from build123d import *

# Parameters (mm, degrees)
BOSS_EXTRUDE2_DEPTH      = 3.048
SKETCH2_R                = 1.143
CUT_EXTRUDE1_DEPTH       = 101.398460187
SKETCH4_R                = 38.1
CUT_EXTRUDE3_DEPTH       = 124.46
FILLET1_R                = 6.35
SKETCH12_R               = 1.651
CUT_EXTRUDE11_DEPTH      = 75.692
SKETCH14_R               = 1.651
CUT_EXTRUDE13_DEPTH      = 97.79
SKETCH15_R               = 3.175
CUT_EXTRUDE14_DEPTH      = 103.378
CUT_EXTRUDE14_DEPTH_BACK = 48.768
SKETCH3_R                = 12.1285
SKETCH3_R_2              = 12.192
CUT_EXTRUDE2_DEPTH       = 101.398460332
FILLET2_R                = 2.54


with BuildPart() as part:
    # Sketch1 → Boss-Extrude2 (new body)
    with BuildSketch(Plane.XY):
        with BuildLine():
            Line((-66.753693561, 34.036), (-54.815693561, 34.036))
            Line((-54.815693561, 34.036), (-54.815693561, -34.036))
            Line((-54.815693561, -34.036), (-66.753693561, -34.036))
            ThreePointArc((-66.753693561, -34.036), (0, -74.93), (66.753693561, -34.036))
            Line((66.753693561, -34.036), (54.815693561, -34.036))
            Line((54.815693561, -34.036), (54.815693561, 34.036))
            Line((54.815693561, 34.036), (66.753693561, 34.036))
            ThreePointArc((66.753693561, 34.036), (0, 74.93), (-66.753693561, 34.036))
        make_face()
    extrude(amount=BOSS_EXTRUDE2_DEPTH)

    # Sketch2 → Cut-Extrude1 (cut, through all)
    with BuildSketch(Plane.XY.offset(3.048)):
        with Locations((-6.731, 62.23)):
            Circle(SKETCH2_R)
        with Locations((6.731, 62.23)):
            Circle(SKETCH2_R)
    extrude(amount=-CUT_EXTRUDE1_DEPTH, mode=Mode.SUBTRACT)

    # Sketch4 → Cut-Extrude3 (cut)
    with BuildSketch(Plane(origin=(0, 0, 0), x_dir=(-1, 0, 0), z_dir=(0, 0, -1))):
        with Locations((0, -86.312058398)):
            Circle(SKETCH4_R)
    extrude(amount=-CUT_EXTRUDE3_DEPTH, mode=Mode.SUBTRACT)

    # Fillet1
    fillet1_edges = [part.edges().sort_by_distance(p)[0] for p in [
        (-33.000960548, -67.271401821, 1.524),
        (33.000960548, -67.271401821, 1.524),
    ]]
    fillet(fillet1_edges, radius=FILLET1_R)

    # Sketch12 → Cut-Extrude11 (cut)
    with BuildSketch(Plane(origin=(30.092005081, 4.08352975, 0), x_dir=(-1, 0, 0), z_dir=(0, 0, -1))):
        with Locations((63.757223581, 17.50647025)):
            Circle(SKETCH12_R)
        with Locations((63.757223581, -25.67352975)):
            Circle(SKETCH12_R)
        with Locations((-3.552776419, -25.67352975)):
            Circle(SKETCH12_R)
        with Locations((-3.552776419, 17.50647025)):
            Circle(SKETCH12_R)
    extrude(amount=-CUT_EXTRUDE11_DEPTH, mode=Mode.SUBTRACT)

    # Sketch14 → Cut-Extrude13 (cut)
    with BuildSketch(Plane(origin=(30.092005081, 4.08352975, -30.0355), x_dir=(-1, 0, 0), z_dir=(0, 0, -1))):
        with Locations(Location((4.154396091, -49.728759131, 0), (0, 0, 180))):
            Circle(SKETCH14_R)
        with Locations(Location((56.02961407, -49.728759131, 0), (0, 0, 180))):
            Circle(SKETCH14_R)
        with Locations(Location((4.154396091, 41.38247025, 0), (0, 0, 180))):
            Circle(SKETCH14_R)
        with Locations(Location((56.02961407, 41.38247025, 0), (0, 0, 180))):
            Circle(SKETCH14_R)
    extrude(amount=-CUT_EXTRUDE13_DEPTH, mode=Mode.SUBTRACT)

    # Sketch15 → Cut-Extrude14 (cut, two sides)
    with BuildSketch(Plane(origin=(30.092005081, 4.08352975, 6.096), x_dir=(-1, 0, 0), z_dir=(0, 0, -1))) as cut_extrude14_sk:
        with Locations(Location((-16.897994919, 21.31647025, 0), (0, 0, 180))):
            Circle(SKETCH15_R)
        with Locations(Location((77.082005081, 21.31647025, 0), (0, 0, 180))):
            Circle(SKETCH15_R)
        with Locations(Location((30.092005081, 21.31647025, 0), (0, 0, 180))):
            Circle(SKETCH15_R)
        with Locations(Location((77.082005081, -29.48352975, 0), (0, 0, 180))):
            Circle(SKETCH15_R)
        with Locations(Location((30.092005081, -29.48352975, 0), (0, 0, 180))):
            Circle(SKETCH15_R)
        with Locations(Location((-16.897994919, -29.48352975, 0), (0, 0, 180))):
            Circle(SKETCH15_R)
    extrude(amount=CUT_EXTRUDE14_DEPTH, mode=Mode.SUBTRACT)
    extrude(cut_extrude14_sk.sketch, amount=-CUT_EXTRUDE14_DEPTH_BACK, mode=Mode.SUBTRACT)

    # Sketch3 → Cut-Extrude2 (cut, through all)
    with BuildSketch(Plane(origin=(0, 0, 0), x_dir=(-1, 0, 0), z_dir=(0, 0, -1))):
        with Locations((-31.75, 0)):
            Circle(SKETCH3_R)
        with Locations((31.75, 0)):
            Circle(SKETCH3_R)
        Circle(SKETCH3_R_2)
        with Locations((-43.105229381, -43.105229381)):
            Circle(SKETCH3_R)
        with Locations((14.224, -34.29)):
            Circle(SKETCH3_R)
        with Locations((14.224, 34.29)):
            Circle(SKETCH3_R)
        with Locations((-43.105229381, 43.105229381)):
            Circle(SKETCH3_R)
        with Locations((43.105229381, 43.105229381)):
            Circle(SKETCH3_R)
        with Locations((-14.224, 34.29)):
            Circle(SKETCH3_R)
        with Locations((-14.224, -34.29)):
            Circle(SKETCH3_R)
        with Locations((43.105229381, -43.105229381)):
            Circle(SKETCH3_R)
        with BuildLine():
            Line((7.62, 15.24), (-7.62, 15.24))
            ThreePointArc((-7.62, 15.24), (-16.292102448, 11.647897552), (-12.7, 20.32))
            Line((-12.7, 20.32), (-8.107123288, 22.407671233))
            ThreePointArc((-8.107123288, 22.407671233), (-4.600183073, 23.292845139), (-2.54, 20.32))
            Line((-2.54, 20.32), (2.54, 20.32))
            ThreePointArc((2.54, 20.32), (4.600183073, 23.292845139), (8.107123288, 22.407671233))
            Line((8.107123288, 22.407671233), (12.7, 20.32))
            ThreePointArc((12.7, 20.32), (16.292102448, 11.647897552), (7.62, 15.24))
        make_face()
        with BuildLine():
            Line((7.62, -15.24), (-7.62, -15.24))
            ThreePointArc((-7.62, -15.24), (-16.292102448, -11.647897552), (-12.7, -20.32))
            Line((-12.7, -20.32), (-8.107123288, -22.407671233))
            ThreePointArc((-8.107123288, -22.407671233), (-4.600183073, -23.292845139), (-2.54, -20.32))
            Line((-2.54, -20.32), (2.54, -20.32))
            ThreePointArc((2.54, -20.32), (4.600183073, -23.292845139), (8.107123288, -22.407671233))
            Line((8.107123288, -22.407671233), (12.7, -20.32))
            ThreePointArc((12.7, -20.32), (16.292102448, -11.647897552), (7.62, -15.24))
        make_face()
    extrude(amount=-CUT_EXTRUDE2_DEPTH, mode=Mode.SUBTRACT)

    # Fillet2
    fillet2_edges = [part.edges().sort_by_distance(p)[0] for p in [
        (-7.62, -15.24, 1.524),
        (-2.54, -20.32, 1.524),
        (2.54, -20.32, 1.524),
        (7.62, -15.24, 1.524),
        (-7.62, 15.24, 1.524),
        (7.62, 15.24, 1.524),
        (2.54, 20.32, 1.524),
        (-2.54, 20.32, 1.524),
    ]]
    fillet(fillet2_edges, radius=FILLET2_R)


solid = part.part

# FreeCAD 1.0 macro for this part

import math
import FreeCAD as App
import Part
import Sketcher
Q = App.Units.Quantity


def edges_at(feature, points):
    """Names of the edges that pass closest to the given points."""
    edges = feature.Shape.Edges
    near = lambda p: min(range(len(edges)), key=lambda i: edges[i].distToShape(Part.Vertex(*p))[0])
    return sorted({f"Edge{near(p) + 1}" for p in points})

doc = App.newDocument("Part")
body = doc.addObject("PartDesign::Body", "Body")

sketch1 = body.newObject("Sketcher::SketchObject", "Sketch")
sketch1.AttachmentSupport = (doc.getObject("XY_Plane"), [""])
sketch1.MapMode = "FlatFace"
sketch1.addGeometry([
    Part.LineSegment(App.Vector(-67, 34, 0), App.Vector(-55, 34, 0)),
    Part.LineSegment(App.Vector(-55, 34, 0), App.Vector(-55, -34, 0)),
    Part.LineSegment(App.Vector(-55, -34, 0), App.Vector(-67, -34, 0)),
    Part.ArcOfCircle(Part.Circle(App.Vector(0, 0, 0), App.Vector(0, 0, 1), 75), math.radians(-153), math.radians(-27)),
    Part.LineSegment(App.Vector(67, -34, 0), App.Vector(55, -34, 0)),
    Part.LineSegment(App.Vector(55, -34, 0), App.Vector(55, 34, 0)),
    Part.LineSegment(App.Vector(55, 34, 0), App.Vector(67, 34, 0)),
    Part.ArcOfCircle(Part.Circle(App.Vector(0, 0, 0), App.Vector(0, 0, 1), 75), math.radians(27), math.radians(153)),
], False)
sketch1.addConstraint([
    Sketcher.Constraint("Coincident", 0, 2, 1, 1),
    Sketcher.Constraint("Coincident", 1, 2, 2, 1),
    Sketcher.Constraint("Coincident", 2, 2, 3, 1),
    Sketcher.Constraint("Coincident", 3, 2, 4, 1),
    Sketcher.Constraint("Coincident", 4, 2, 5, 1),
    Sketcher.Constraint("Coincident", 5, 2, 6, 1),
    Sketcher.Constraint("Coincident", 6, 2, 7, 1),
    Sketcher.Constraint("Coincident", 7, 2, 0, 1),
    Sketcher.Constraint("Horizontal", 0),
    Sketcher.Constraint("Vertical", 1),
    Sketcher.Constraint("Horizontal", 2),
    Sketcher.Constraint("Horizontal", 4),
    Sketcher.Constraint("Vertical", 5),
    Sketcher.Constraint("Horizontal", 6),
    Sketcher.Constraint("Coincident", 3, 3, -1, 1),
    Sketcher.Constraint("Coincident", 7, 3, -1, 1),
    Sketcher.Constraint("Equal", 3, 7),
    Sketcher.Constraint("Symmetric", 0, 2, 4, 2, -1, 1),
    Sketcher.Constraint("Horizontal", 2, 2, 3, 2),
    Sketcher.Constraint("Horizontal", 0, 2, 5, 2),
    Sketcher.Constraint("Radius", 3, Q("2.95 in")),
    Sketcher.Constraint("DistanceX", 0, 1, 0, 2, Q("0.47 in")),
    Sketcher.Constraint("DistanceY", 1, 2, 1, 1, Q("2.68 in")),
])
pad1 = body.newObject("PartDesign::Pad", "Pad")
pad1.Profile = sketch1
pad1.Length = Q("0.12 in")

sketch2 = body.newObject("Sketcher::SketchObject", "Sketch001")
sketch2.AttachmentSupport = (doc.getObject("XY_Plane"), [""])
sketch2.MapMode = "FlatFace"
sketch2.AttachmentOffset = App.Placement(App.Vector(0, 0, 0.12 * 25.4), App.Rotation())
sketch2.addGeometry([
    Part.Circle(App.Vector(-6.7, 62.2, 0), App.Vector(0, 0, 1), 1.1),
    Part.Circle(App.Vector(6.7, 62.2, 0), App.Vector(0, 0, 1), 1.1),
], False)
sketch2.addConstraint([
    Sketcher.Constraint("Equal", 0, 1),
    Sketcher.Constraint("Symmetric", 0, 3, 1, 3, -2),
    Sketcher.Constraint("Diameter", 0, Q("0.09 in")),
    Sketcher.Constraint("DistanceY", -1, 1, 0, 3, Q("2.45 in")),
    Sketcher.Constraint("DistanceX", 0, 3, 1, 3, Q("0.53 in")),
])
pocket1 = body.newObject("PartDesign::Pocket", "Pocket")
pocket1.Profile = sketch2
pocket1.Type = "ThroughAll"

sketch3 = body.newObject("Sketcher::SketchObject", "Sketch002")
sketch3.AttachmentSupport = (doc.getObject("XY_Plane"), [""])
sketch3.MapMode = "FlatFace"
sketch3.addGeometry(Part.Circle(App.Vector(0, -86, 0), App.Vector(0, 0, 1), 38), False)
sketch3.addConstraint([
    Sketcher.Constraint("PointOnObject", 0, 3, -2),
    Sketcher.Constraint("Diameter", 0, Q("3 in")),
    Sketcher.Constraint("DistanceY", 0, 3, -1, 1, Q("86.312058 mm")),
])
pocket2 = body.newObject("PartDesign::Pocket", "Pocket001")
pocket2.Profile = sketch3
pocket2.Length = Q("4.9 in")
pocket2.Reversed = True
doc.recompute()

fillet = body.newObject("PartDesign::Fillet", "Fillet")
fillet.Base = (pocket2, edges_at(pocket2, [(-33.001, -67.271, 1.524), (33.001, -67.271, 1.524)]))
fillet.Radius = Q("0.25 in")

sketch4 = body.newObject("Sketcher::SketchObject", "Sketch003")
sketch4.AttachmentSupport = (doc.getObject("XY_Plane"), [""])
sketch4.MapMode = "FlatFace"
sketch4.addGeometry([
    Part.Circle(App.Vector(-33.7, 21.6, 0), App.Vector(0, 0, 1), 1.7),
    Part.Circle(App.Vector(-33.7, -21.6, 0), App.Vector(0, 0, 1), 1.7),
    Part.Circle(App.Vector(33.6, -21.6, 0), App.Vector(0, 0, 1), 1.7),
    Part.Circle(App.Vector(33.6, 21.6, 0), App.Vector(0, 0, 1), 1.7),
], False)
sketch4.addConstraint([
    Sketcher.Constraint("Equal", 0, 1),
    Sketcher.Constraint("Equal", 1, 2),
    Sketcher.Constraint("Equal", 2, 3),
    Sketcher.Constraint("Symmetric", 0, 3, 1, 3, -1),
    Sketcher.Constraint("Symmetric", 2, 3, 3, 3, -1),
    Sketcher.Constraint("Horizontal", 1, 3, 2, 3),
    Sketcher.Constraint("Diameter", 0, Q("0.13 in")),
    Sketcher.Constraint("DistanceY", 1, 3, 0, 3, Q("1.7 in")),
    Sketcher.Constraint("DistanceX", 1, 3, 2, 3, Q("2.65 in")),
    Sketcher.Constraint("DistanceX", 0, 3, -1, 1, Q("33.665219 mm")),
])
pocket3 = body.newObject("PartDesign::Pocket", "Pocket002")
pocket3.Profile = sketch4
pocket3.Length = Q("2.98 in")
pocket3.Reversed = True

sketch5 = body.newObject("Sketcher::SketchObject", "Sketch004")
sketch5.AttachmentSupport = (doc.getObject("XY_Plane"), [""])
sketch5.MapMode = "FlatFace"
sketch5.AttachmentOffset = App.Placement(App.Vector(0, 0, -1.1825 * 25.4), App.Rotation())
sketch5.addGeometry([
    Part.Circle(App.Vector(25.9, -45.6, 0), App.Vector(0, 0, 1), 1.7),
    Part.Circle(App.Vector(-25.9, -45.6, 0), App.Vector(0, 0, 1), 1.7),
    Part.Circle(App.Vector(25.9, 45.5, 0), App.Vector(0, 0, 1), 1.7),
    Part.Circle(App.Vector(-25.9, 45.5, 0), App.Vector(0, 0, 1), 1.7),
], False)
sketch5.addConstraint([
    Sketcher.Constraint("Equal", 0, 1),
    Sketcher.Constraint("Equal", 1, 2),
    Sketcher.Constraint("Equal", 2, 3),
    Sketcher.Constraint("Symmetric", 0, 3, 1, 3, -2),
    Sketcher.Constraint("Symmetric", 2, 3, 3, 3, -2),
    Sketcher.Constraint("Vertical", 0, 3, 2, 3),
    Sketcher.Constraint("Diameter", 0, Q("0.13 in")),
    Sketcher.Constraint("DistanceY", -1, 1, 2, 3, Q("1.79 in")),
    Sketcher.Constraint("DistanceX", -1, 1, 0, 3, Q("25.937609 mm")),
    Sketcher.Constraint("DistanceY", 0, 3, -1, 1, Q("45.645229 mm")),
])
pocket4 = body.newObject("PartDesign::Pocket", "Pocket003")
pocket4.Profile = sketch5
pocket4.Length = Q("3.85 in")
pocket4.Reversed = True

sketch6 = body.newObject("Sketcher::SketchObject", "Sketch005")
sketch6.AttachmentSupport = (doc.getObject("XY_Plane"), [""])
sketch6.MapMode = "FlatFace"
sketch6.AttachmentOffset = App.Placement(App.Vector(0, 0, 0.24 * 25.4), App.Rotation())
sketch6.addGeometry([
    Part.Circle(App.Vector(47, 25.4, 0), App.Vector(0, 0, 1), 3.2),
    Part.Circle(App.Vector(-47, 25.4, 0), App.Vector(0, 0, 1), 3.2),
    Part.Circle(App.Vector(0, 25.4, 0), App.Vector(0, 0, 1), 3.2),
    Part.Circle(App.Vector(-47, -25.4, 0), App.Vector(0, 0, 1), 3.2),
    Part.Circle(App.Vector(0, -25.4, 0), App.Vector(0, 0, 1), 3.2),
    Part.Circle(App.Vector(47, -25.4, 0), App.Vector(0, 0, 1), 3.2),
], False)
sketch6.addConstraint([
    Sketcher.Constraint("Equal", 0, 1),
    Sketcher.Constraint("Equal", 1, 2),
    Sketcher.Constraint("Equal", 2, 3),
    Sketcher.Constraint("Equal", 3, 4),
    Sketcher.Constraint("Equal", 4, 5),
    Sketcher.Constraint("Symmetric", 0, 3, 3, 3, -1, 1),
    Sketcher.Constraint("Symmetric", 2, 3, 4, 3, -1, 1),
    Sketcher.Constraint("Symmetric", 1, 3, 5, 3, -1, 1),
    Sketcher.Constraint("Symmetric", 0, 3, 1, 3, -2),
    Sketcher.Constraint("PointOnObject", 2, 3, -2),
    Sketcher.Constraint("Horizontal", 1, 3, 2, 3),
    Sketcher.Constraint("Diameter", 0, Q("0.25 in")),
    Sketcher.Constraint("DistanceY", -1, 1, 0, 3, Q("1 in")),
    Sketcher.Constraint("DistanceX", 1, 3, 0, 3, Q("3.7 in")),
])
pocket5 = body.newObject("PartDesign::Pocket", "Pocket004")
pocket5.Profile = sketch6
pocket5.Type = "ThroughAll"
pocket5.Midplane = True

sketch7 = body.newObject("Sketcher::SketchObject", "Sketch006")
sketch7.AttachmentSupport = (doc.getObject("XY_Plane"), [""])
sketch7.MapMode = "FlatFace"
sketch7.addGeometry([
    Part.Circle(App.Vector(31.8, 0, 0), App.Vector(0, 0, 1), 12.1),
    Part.Circle(App.Vector(-31.8, 0, 0), App.Vector(0, 0, 1), 12.1),
    Part.Circle(App.Vector(0, 0, 0), App.Vector(0, 0, 1), 12.2),
    Part.Circle(App.Vector(43.1, -43.1, 0), App.Vector(0, 0, 1), 12.1),
    Part.Circle(App.Vector(-14.2, -34.3, 0), App.Vector(0, 0, 1), 12.1),
    Part.Circle(App.Vector(-14.2, 34.3, 0), App.Vector(0, 0, 1), 12.1),
    Part.Circle(App.Vector(43.1, 43.1, 0), App.Vector(0, 0, 1), 12.1),
    Part.Circle(App.Vector(-43.1, 43.1, 0), App.Vector(0, 0, 1), 12.1),
    Part.Circle(App.Vector(14.2, 34.3, 0), App.Vector(0, 0, 1), 12.1),
    Part.Circle(App.Vector(14.2, -34.3, 0), App.Vector(0, 0, 1), 12.1),
    Part.Circle(App.Vector(-43.1, -43.1, 0), App.Vector(0, 0, 1), 12.1),
    Part.LineSegment(App.Vector(7.6, 15.2, 0), App.Vector(-7.6, 15.2, 0)),
    Part.ArcOfCircle(Part.Circle(App.Vector(-12.7, 15.2, 0), App.Vector(0, 0, 1), 5.1), math.radians(90), math.radians(360)),
    Part.LineSegment(App.Vector(-12.7, 20.3, 0), App.Vector(-8.1, 22.4, 0)),
    Part.ArcOfCircle(Part.Circle(App.Vector(-5.7, 20.3, 0), App.Vector(0, 0, 1), 3.2), math.radians(0), math.radians(139)),
    Part.LineSegment(App.Vector(-2.5, 20.3, 0), App.Vector(2.5, 20.3, 0)),
    Part.ArcOfCircle(Part.Circle(App.Vector(5.7, 20.3, 0), App.Vector(0, 0, 1), 3.2), math.radians(41), math.radians(180)),
    Part.LineSegment(App.Vector(8.1, 22.4, 0), App.Vector(12.7, 20.3, 0)),
    Part.ArcOfCircle(Part.Circle(App.Vector(12.7, 15.2, 0), App.Vector(0, 0, 1), 5.1), math.radians(180), math.radians(450)),
    Part.LineSegment(App.Vector(-7.6, -15.2, 0), App.Vector(7.6, -15.2, 0)),
    Part.ArcOfCircle(Part.Circle(App.Vector(12.7, -15.2, 0), App.Vector(0, 0, 1), 5.1), math.radians(-90), math.radians(180)),
    Part.LineSegment(App.Vector(12.7, -20.3, 0), App.Vector(8.1, -22.4, 0)),
    Part.ArcOfCircle(Part.Circle(App.Vector(5.7, -20.3, 0), App.Vector(0, 0, 1), 3.2), math.radians(180), math.radians(319)),
    Part.LineSegment(App.Vector(2.5, -20.3, 0), App.Vector(-2.5, -20.3, 0)),
    Part.ArcOfCircle(Part.Circle(App.Vector(-5.7, -20.3, 0), App.Vector(0, 0, 1), 3.2), math.radians(-139), math.radians(0)),
    Part.LineSegment(App.Vector(-8.1, -22.4, 0), App.Vector(-12.7, -20.3, 0)),
    Part.ArcOfCircle(Part.Circle(App.Vector(-12.7, -15.2, 0), App.Vector(0, 0, 1), 5.1), math.radians(0), math.radians(270)),
], False)
sketch7.addConstraint([
    Sketcher.Constraint("Coincident", 11, 2, 12, 2),
    Sketcher.Constraint("Coincident", 12, 1, 13, 1),
    Sketcher.Constraint("Coincident", 13, 2, 14, 2),
    Sketcher.Constraint("Coincident", 14, 1, 15, 1),
    Sketcher.Constraint("Coincident", 15, 2, 16, 2),
    Sketcher.Constraint("Coincident", 16, 1, 17, 1),
    Sketcher.Constraint("Coincident", 17, 2, 18, 2),
    Sketcher.Constraint("Coincident", 18, 1, 11, 1),
    Sketcher.Constraint("Coincident", 19, 2, 20, 2),
    Sketcher.Constraint("Coincident", 20, 1, 21, 1),
    Sketcher.Constraint("Coincident", 21, 2, 22, 2),
    Sketcher.Constraint("Coincident", 22, 1, 23, 1),
    Sketcher.Constraint("Coincident", 23, 2, 24, 2),
    Sketcher.Constraint("Coincident", 24, 1, 25, 1),
    Sketcher.Constraint("Coincident", 25, 2, 26, 2),
    Sketcher.Constraint("Coincident", 26, 1, 19, 1),
    Sketcher.Constraint("Horizontal", 11),
    Sketcher.Constraint("Horizontal", 15),
    Sketcher.Constraint("Horizontal", 19),
    Sketcher.Constraint("Horizontal", 23),
    Sketcher.Constraint("Coincident", 2, 3, -1, 1),
    Sketcher.Constraint("Equal", 0, 1),
    Sketcher.Constraint("Equal", 1, 3),
    Sketcher.Constraint("Equal", 3, 4),
    Sketcher.Constraint("Equal", 4, 5),
    Sketcher.Constraint("Equal", 5, 6),
    Sketcher.Constraint("Equal", 6, 7),
    Sketcher.Constraint("Equal", 7, 8),
    Sketcher.Constraint("Equal", 8, 9),
    Sketcher.Constraint("Equal", 9, 10),
    Sketcher.Constraint("Equal", 14, 16),
    Sketcher.Constraint("Equal", 12, 18),
    Sketcher.Constraint("Equal", 18, 20),
    Sketcher.Constraint("Equal", 16, 22),
    Sketcher.Constraint("Equal", 22, 24),
    Sketcher.Constraint("Equal", 20, 26),
    Sketcher.Constraint("Symmetric", 0, 3, 1, 3, -1, 1),
    Sketcher.Constraint("Symmetric", 3, 3, 7, 3, -1, 1),
    Sketcher.Constraint("Symmetric", 4, 3, 8, 3, -1, 1),
    Sketcher.Constraint("Symmetric", 5, 3, 9, 3, -1, 1),
    Sketcher.Constraint("Symmetric", 6, 3, 10, 3, -1, 1),
    Sketcher.Constraint("Symmetric", 12, 3, 20, 3, -1, 1),
    Sketcher.Constraint("Symmetric", 14, 3, 22, 3, -1, 1),
    Sketcher.Constraint("Symmetric", 16, 3, 24, 3, -1, 1),
    Sketcher.Constraint("Symmetric", 18, 3, 26, 3, -1, 1),
    Sketcher.Constraint("Symmetric", 6, 3, 7, 3, -2),
    Sketcher.Constraint("Symmetric", 5, 3, 8, 3, -2),
    Sketcher.Constraint("Symmetric", 14, 3, 16, 3, -2),
    Sketcher.Constraint("Symmetric", 12, 3, 18, 3, -2),
    Sketcher.Constraint("PointOnObject", 0, 3, -1),
    Sketcher.Constraint("Parallel", 13, 21),
    Sketcher.Constraint("Parallel", 17, 25),
    Sketcher.Constraint("Horizontal", 18, 3, 11, 2),
    Sketcher.Constraint("Horizontal", 16, 3, 12, 1),
    Sketcher.Constraint("Horizontal", 12, 1, 14, 1),
    Sketcher.Constraint("Horizontal", 13, 2, 16, 1),
    Sketcher.Constraint("Horizontal", 26, 3, 19, 2),
    Sketcher.Constraint("Horizontal", 20, 1, 22, 1),
    Sketcher.Constraint("Horizontal", 21, 2, 24, 1),
    Sketcher.Constraint("Vertical", 26, 3, 12, 1),
    Sketcher.Constraint("Vertical", 20, 3, 17, 2),
    Sketcher.Constraint("Vertical", 17, 2, 20, 1),
    Sketcher.Constraint("Radius", 12, Q("0.2 in")),
    Sketcher.Constraint("Diameter", 2, Q("0.96 in")),
    Sketcher.Constraint("Diameter", 0, Q("0.955 in")),
    Sketcher.Constraint("DistanceX", 11, 2, 11, 1, Q("0.6 in")),
    Sketcher.Constraint("DistanceX", 15, 1, 15, 2, Q("0.2 in")),
    Sketcher.Constraint("Radius", 14, Q("0.125 in")),
    Sketcher.Constraint("DistanceY", -1, 1, 12, 3, Q("0.6 in")),
    Sketcher.Constraint("DistanceX", 1, 3, 0, 3, Q("2.5 in")),
    Sketcher.Constraint("DistanceY", 4, 3, 5, 3, Q("2.7 in")),
    Sketcher.Constraint("DistanceX", 4, 3, -1, 1, Q("0.56 in")),
    Sketcher.Constraint("DistanceX", -1, 1, 3, 3, Q("43.105229 mm")),
    Sketcher.Constraint("DistanceY", 3, 3, -1, 1, Q("43.105229 mm")),
    Sketcher.Constraint("DistanceY", -1, 1, 13, 2, Q("22.407671 mm")),
])
pocket6 = body.newObject("PartDesign::Pocket", "Pocket005")
pocket6.Profile = sketch7
pocket6.Type = "ThroughAll"
pocket6.Reversed = True
doc.recompute()

fillet2 = body.newObject("PartDesign::Fillet", "Fillet001")
fillet2.Base = (pocket6, edges_at(pocket6, [
    (-7.62, -15.24, 1.524),
    (-2.54, -20.32, 1.524),
    (2.54, -20.32, 1.524),
    (7.62, -15.24, 1.524),
    (-7.62, 15.24, 1.524),
    (7.62, 15.24, 1.524),
    (2.54, 20.32, 1.524),
    (-2.54, 20.32, 1.524),
]))
fillet2.Radius = Q("0.1 in")

doc.recompute()
